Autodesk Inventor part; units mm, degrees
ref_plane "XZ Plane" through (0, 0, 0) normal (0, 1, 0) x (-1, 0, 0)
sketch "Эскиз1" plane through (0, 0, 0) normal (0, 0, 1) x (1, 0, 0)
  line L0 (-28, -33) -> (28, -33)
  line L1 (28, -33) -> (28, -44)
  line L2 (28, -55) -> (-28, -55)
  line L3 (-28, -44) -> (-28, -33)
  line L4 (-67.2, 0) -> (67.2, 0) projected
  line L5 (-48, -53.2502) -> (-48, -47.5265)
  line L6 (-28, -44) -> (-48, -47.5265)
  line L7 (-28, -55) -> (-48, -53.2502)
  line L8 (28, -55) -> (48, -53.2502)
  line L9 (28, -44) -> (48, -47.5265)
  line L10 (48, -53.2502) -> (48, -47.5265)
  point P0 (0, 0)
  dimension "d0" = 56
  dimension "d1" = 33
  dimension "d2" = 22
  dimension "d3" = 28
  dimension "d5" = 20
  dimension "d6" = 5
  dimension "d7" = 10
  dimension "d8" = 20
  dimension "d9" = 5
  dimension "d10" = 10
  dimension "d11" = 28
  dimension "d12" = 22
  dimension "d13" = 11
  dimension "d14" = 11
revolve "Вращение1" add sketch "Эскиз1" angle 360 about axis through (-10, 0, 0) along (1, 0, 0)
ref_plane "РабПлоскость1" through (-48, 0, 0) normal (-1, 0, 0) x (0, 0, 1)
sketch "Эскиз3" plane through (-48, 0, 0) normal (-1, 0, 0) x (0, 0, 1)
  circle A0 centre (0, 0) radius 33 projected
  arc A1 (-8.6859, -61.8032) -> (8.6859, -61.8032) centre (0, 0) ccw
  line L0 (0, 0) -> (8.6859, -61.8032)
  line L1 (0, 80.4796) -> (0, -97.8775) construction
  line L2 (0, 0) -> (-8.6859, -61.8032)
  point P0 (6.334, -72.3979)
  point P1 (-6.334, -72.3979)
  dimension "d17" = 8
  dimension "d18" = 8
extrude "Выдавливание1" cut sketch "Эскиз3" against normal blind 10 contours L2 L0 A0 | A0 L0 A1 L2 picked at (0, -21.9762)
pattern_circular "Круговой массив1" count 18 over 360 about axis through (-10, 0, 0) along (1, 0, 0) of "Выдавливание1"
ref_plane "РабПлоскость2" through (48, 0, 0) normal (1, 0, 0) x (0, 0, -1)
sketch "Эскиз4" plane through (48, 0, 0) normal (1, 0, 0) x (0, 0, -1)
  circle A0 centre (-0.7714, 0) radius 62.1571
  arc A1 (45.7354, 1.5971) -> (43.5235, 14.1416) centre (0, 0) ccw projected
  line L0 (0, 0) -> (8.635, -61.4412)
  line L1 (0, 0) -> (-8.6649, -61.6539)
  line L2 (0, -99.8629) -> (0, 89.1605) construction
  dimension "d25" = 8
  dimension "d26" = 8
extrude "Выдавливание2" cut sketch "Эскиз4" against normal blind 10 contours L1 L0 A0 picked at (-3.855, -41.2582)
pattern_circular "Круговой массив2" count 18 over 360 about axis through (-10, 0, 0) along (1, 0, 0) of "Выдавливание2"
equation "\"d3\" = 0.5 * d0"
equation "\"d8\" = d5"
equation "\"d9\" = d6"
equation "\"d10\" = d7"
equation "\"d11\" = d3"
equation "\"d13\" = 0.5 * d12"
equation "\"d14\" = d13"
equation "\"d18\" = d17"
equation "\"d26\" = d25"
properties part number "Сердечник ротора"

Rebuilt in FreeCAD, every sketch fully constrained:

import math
import FreeCAD as App
import Part
import Sketcher
Q = App.Units.Quantity


def add_polygon(sketch, points):
    """Adds a closed chain of lines whose ends are joined by coincident constraints."""
    first, n = sketch.GeometryCount, len(points)
    for a, b in zip(points, points[1:] + points[:1]):
        sketch.addGeometry(Part.LineSegment(App.Vector(*a, 0), App.Vector(*b, 0)), False)
    for i in range(n):
        sketch.addConstraint(Sketcher.Constraint("Coincident", first + i, 2, first + (i + 1) % n, 1))

doc = App.newDocument("Part")
body = doc.addObject("PartDesign::Body", "Body")

# Sketch on XY plane
sketch1 = doc.addObject("Sketcher::SketchObject", "Sketch")
body.addObject(sketch1)
sketch1.AttachmentSupport = (doc.XY_Plane, [""])
sketch1.MapMode = "FlatFace"
add_polygon(sketch1, [(28, -33), (-28, -33), (-28, -44), (-48, -48), (-48, -53), (-28, -55), (28, -55), (48, -53), (48, -48), (28, -44)])  # lines 0-9
sketch1.addConstraint([
    Sketcher.Constraint("Horizontal", 0),
    Sketcher.Constraint("Vertical", 1),
    Sketcher.Constraint("Vertical", 3),
    Sketcher.Constraint("Horizontal", 5),
    Sketcher.Constraint("Vertical", 7),
    Sketcher.Constraint("Vertical", 9),
    Sketcher.Constraint("Symmetric", 3, 2, 6, 2, -2),
    Sketcher.Constraint("Symmetric", 1, 2, 8, 2, -2),
    Sketcher.Constraint("Horizontal", 2, 2, 7, 2),
    Sketcher.Constraint("Vertical", 1, 2, 4, 2),
    Sketcher.Constraint("Vertical", 5, 2, 8, 2),
    Sketcher.Constraint("DistanceX", 0, 2, 0, 1, Q("56 mm")),
    Sketcher.Constraint("DistanceY", 1, 2, 1, 1, Q("11 mm")),
    Sketcher.Constraint("Angle", 4, Q("-5 deg")),
    Sketcher.Constraint("DistanceY", 0, 2, -1, 1, Q("33 mm")),
    Sketcher.Constraint("DistanceX", 2, 2, 1, 2, Q("20 mm")),
    Sketcher.Constraint("DistanceY", 4, 2, 1, 2, Q("11 mm")),
    Sketcher.Constraint("Angle", 2, Q("-170 deg")),
])
revolution = doc.addObject("PartDesign::Revolution", "Revolution")
body.addObject(revolution)
revolution.Profile = sketch1
revolution.ReferenceAxis = (sketch1, ["H_Axis"])
revolution.Angle = 360

# Sketch on YZ plane
sketch2 = doc.addObject("Sketcher::SketchObject", "Sketch001")
body.addObject(sketch2)
sketch2.AttachmentSupport = (doc.YZ_Plane, [""])
sketch2.MapMode = "FlatFace"
sketch2.AttachmentOffset = App.Placement(App.Vector(0, 0, -48), App.Rotation())
sketch2.addGeometry([
    Part.LineSegment(App.Vector(0, 0, 0), App.Vector(-62, -9, 0)),
    Part.ArcOfCircle(Part.Circle(App.Vector(0, 0, 0), App.Vector(0, 0, 1), 62), math.radians(172), math.radians(188)),
    Part.LineSegment(App.Vector(-62, 9, 0), App.Vector(0, 0, 0)),
], False)
sketch2.addConstraint([
    Sketcher.Constraint("Coincident", 0, 2, 1, 2),
    Sketcher.Constraint("Coincident", 1, 1, 2, 1),
    Sketcher.Constraint("Coincident", 2, 2, 0, 1),
    Sketcher.Constraint("Coincident", 1, 3, -1, 1),
    Sketcher.Constraint("Coincident", 2, 2, -1, 1),
    Sketcher.Constraint("Vertical", 0, 2, 1, 1),
    Sketcher.Constraint("Angle", 2, Q("-8 deg")),
    Sketcher.Constraint("Radius", 1, Q("62.4106 mm")),
])
pocket1 = doc.addObject("PartDesign::Pocket", "Pocket")
body.addObject(pocket1)
pocket1.Profile = sketch2
pocket1.Length = 10
pocket1.Reversed = True
doc.recompute()

polarpattern = doc.addObject("PartDesign::PolarPattern", "PolarPattern")
body.addObject(polarpattern)
polarpattern.Originals = [pocket1]
polarpattern.Axis = (doc.X_Axis, [""])
polarpattern.Angle = 360
polarpattern.Occurrences = 18
body.Tip = polarpattern

# Sketch on YZ plane
sketch3 = doc.addObject("Sketcher::SketchObject", "Sketch002")
body.addObject(sketch3)
sketch3.AttachmentSupport = (doc.YZ_Plane, [""])
sketch3.MapMode = "FlatFace"
sketch3.AttachmentOffset = App.Placement(App.Vector(0, 0, 48), App.Rotation())
sketch3.addGeometry([
    Part.LineSegment(App.Vector(0, 0, 0), App.Vector(-62, 9, 0)),
    Part.ArcOfCircle(Part.Circle(App.Vector(0, 1, 0), App.Vector(0, 0, 1), 62), math.radians(172.7), math.radians(188.7)),
    Part.LineSegment(App.Vector(-61, -9, 0), App.Vector(0, 0, 0)),
], False)
sketch3.addConstraint([
    Sketcher.Constraint("Coincident", 0, 2, 1, 1),
    Sketcher.Constraint("Coincident", 1, 2, 2, 1),
    Sketcher.Constraint("Coincident", 2, 2, 0, 1),
    Sketcher.Constraint("Coincident", 2, 2, -1, 1),
    Sketcher.Constraint("PointOnObject", 1, 3, -2),
    Sketcher.Constraint("Angle", 2, Q("8 deg")),
    Sketcher.Constraint("Angle", 0, Q("172 deg")),
    Sketcher.Constraint("Radius", 1, Q("62.157 mm")),
    Sketcher.Constraint("Distance", 2, Q("62.045 mm")),
])
pocket2 = doc.addObject("PartDesign::Pocket", "Pocket001")
body.addObject(pocket2)
pocket2.Profile = sketch3
pocket2.Length = 10
doc.recompute()

polarpattern2 = doc.addObject("PartDesign::PolarPattern", "PolarPattern001")
body.addObject(polarpattern2)
polarpattern2.Originals = [pocket2]
polarpattern2.Axis = (doc.X_Axis, [""])
polarpattern2.Angle = 360
polarpattern2.Occurrences = 18
body.Tip = polarpattern2

doc.recompute()
